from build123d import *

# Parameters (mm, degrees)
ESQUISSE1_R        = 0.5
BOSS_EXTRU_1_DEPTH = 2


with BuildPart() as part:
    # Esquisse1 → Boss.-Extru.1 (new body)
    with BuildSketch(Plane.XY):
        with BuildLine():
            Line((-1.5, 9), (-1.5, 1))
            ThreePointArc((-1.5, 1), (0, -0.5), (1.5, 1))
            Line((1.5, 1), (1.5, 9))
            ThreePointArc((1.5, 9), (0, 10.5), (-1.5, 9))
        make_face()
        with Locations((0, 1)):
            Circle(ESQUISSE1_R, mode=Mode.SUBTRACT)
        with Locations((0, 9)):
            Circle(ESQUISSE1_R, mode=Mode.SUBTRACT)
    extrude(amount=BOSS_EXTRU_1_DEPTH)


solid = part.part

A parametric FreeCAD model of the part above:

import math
import FreeCAD as App
import Part
import Sketcher

doc = App.newDocument("Part")
params = doc.addObject("Spreadsheet::Sheet", "Params")
for row, (alias, value) in enumerate([
    ("sketch1_diameter", "1 mm"),
    ("sketch1_radius", "1.5 mm"),
    ("sketch1_height", "8 mm"),
    ("pad1_length", "2 mm"),
], start=1):
    params.set(f"A{row}", alias)
    params.set(f"B{row}", "=" + value)
    params.setAlias(f"B{row}", alias)

body = doc.addObject("PartDesign::Body", "Body")

sketch1 = body.newObject("Sketcher::SketchObject", "Sketch")
sketch1.AttachmentSupport = (doc.getObject("XY_Plane"), [""])
sketch1.MapMode = "FlatFace"
sketch1.addGeometry([
    Part.LineSegment(App.Vector(-1.5, 9, 0), App.Vector(-1.5, 1, 0)),
    Part.ArcOfCircle(Part.Circle(App.Vector(0, 1, 0), App.Vector(0, 0, 1), 1.5), math.radians(180), math.radians(360)),
    Part.LineSegment(App.Vector(1.5, 1, 0), App.Vector(1.5, 9, 0)),
    Part.ArcOfCircle(Part.Circle(App.Vector(0, 9, 0), App.Vector(0, 0, 1), 1.5), math.radians(0), math.radians(180)),
    Part.Circle(App.Vector(0, 1, 0), App.Vector(0, 0, 1), 0.5),
    Part.Circle(App.Vector(0, 9, 0), App.Vector(0, 0, 1), 0.5),
], False)
sketch1.addConstraint([
    Sketcher.Constraint("Tangent", 0, 2, 1, 1),
    Sketcher.Constraint("Tangent", 1, 2, 2, 1),
    Sketcher.Constraint("Tangent", 2, 2, 3, 1),
    Sketcher.Constraint("Tangent", 3, 2, 0, 1),
    Sketcher.Constraint("Vertical", 0),
    Sketcher.Constraint("Vertical", 2),
    Sketcher.Constraint("Coincident", 4, 3, 1, 3),
    Sketcher.Constraint("Coincident", 5, 3, 3, 3),
    Sketcher.Constraint("Equal", 4, 5),
    Sketcher.Constraint("PointOnObject", 1, 3, -2),
    Sketcher.Constraint("Diameter", 4, 1.0),
    Sketcher.Constraint("Radius", 1, 1.5),
    Sketcher.Constraint("DistanceY", 0, 2, 0, 1, 8.0),
    Sketcher.Constraint("DistanceY", -1, 1, 1, 3, 1.0),
])
sketch1.setExpression("Constraints[10]", "Params.sketch1_diameter")
sketch1.setExpression("Constraints[11]", "Params.sketch1_radius")
sketch1.setExpression("Constraints[12]", "Params.sketch1_height")
pad1 = body.newObject("PartDesign::Pad", "Pad")
pad1.Profile = sketch1
pad1.setExpression("Length", "Params.pad1_length")

doc.recompute()
